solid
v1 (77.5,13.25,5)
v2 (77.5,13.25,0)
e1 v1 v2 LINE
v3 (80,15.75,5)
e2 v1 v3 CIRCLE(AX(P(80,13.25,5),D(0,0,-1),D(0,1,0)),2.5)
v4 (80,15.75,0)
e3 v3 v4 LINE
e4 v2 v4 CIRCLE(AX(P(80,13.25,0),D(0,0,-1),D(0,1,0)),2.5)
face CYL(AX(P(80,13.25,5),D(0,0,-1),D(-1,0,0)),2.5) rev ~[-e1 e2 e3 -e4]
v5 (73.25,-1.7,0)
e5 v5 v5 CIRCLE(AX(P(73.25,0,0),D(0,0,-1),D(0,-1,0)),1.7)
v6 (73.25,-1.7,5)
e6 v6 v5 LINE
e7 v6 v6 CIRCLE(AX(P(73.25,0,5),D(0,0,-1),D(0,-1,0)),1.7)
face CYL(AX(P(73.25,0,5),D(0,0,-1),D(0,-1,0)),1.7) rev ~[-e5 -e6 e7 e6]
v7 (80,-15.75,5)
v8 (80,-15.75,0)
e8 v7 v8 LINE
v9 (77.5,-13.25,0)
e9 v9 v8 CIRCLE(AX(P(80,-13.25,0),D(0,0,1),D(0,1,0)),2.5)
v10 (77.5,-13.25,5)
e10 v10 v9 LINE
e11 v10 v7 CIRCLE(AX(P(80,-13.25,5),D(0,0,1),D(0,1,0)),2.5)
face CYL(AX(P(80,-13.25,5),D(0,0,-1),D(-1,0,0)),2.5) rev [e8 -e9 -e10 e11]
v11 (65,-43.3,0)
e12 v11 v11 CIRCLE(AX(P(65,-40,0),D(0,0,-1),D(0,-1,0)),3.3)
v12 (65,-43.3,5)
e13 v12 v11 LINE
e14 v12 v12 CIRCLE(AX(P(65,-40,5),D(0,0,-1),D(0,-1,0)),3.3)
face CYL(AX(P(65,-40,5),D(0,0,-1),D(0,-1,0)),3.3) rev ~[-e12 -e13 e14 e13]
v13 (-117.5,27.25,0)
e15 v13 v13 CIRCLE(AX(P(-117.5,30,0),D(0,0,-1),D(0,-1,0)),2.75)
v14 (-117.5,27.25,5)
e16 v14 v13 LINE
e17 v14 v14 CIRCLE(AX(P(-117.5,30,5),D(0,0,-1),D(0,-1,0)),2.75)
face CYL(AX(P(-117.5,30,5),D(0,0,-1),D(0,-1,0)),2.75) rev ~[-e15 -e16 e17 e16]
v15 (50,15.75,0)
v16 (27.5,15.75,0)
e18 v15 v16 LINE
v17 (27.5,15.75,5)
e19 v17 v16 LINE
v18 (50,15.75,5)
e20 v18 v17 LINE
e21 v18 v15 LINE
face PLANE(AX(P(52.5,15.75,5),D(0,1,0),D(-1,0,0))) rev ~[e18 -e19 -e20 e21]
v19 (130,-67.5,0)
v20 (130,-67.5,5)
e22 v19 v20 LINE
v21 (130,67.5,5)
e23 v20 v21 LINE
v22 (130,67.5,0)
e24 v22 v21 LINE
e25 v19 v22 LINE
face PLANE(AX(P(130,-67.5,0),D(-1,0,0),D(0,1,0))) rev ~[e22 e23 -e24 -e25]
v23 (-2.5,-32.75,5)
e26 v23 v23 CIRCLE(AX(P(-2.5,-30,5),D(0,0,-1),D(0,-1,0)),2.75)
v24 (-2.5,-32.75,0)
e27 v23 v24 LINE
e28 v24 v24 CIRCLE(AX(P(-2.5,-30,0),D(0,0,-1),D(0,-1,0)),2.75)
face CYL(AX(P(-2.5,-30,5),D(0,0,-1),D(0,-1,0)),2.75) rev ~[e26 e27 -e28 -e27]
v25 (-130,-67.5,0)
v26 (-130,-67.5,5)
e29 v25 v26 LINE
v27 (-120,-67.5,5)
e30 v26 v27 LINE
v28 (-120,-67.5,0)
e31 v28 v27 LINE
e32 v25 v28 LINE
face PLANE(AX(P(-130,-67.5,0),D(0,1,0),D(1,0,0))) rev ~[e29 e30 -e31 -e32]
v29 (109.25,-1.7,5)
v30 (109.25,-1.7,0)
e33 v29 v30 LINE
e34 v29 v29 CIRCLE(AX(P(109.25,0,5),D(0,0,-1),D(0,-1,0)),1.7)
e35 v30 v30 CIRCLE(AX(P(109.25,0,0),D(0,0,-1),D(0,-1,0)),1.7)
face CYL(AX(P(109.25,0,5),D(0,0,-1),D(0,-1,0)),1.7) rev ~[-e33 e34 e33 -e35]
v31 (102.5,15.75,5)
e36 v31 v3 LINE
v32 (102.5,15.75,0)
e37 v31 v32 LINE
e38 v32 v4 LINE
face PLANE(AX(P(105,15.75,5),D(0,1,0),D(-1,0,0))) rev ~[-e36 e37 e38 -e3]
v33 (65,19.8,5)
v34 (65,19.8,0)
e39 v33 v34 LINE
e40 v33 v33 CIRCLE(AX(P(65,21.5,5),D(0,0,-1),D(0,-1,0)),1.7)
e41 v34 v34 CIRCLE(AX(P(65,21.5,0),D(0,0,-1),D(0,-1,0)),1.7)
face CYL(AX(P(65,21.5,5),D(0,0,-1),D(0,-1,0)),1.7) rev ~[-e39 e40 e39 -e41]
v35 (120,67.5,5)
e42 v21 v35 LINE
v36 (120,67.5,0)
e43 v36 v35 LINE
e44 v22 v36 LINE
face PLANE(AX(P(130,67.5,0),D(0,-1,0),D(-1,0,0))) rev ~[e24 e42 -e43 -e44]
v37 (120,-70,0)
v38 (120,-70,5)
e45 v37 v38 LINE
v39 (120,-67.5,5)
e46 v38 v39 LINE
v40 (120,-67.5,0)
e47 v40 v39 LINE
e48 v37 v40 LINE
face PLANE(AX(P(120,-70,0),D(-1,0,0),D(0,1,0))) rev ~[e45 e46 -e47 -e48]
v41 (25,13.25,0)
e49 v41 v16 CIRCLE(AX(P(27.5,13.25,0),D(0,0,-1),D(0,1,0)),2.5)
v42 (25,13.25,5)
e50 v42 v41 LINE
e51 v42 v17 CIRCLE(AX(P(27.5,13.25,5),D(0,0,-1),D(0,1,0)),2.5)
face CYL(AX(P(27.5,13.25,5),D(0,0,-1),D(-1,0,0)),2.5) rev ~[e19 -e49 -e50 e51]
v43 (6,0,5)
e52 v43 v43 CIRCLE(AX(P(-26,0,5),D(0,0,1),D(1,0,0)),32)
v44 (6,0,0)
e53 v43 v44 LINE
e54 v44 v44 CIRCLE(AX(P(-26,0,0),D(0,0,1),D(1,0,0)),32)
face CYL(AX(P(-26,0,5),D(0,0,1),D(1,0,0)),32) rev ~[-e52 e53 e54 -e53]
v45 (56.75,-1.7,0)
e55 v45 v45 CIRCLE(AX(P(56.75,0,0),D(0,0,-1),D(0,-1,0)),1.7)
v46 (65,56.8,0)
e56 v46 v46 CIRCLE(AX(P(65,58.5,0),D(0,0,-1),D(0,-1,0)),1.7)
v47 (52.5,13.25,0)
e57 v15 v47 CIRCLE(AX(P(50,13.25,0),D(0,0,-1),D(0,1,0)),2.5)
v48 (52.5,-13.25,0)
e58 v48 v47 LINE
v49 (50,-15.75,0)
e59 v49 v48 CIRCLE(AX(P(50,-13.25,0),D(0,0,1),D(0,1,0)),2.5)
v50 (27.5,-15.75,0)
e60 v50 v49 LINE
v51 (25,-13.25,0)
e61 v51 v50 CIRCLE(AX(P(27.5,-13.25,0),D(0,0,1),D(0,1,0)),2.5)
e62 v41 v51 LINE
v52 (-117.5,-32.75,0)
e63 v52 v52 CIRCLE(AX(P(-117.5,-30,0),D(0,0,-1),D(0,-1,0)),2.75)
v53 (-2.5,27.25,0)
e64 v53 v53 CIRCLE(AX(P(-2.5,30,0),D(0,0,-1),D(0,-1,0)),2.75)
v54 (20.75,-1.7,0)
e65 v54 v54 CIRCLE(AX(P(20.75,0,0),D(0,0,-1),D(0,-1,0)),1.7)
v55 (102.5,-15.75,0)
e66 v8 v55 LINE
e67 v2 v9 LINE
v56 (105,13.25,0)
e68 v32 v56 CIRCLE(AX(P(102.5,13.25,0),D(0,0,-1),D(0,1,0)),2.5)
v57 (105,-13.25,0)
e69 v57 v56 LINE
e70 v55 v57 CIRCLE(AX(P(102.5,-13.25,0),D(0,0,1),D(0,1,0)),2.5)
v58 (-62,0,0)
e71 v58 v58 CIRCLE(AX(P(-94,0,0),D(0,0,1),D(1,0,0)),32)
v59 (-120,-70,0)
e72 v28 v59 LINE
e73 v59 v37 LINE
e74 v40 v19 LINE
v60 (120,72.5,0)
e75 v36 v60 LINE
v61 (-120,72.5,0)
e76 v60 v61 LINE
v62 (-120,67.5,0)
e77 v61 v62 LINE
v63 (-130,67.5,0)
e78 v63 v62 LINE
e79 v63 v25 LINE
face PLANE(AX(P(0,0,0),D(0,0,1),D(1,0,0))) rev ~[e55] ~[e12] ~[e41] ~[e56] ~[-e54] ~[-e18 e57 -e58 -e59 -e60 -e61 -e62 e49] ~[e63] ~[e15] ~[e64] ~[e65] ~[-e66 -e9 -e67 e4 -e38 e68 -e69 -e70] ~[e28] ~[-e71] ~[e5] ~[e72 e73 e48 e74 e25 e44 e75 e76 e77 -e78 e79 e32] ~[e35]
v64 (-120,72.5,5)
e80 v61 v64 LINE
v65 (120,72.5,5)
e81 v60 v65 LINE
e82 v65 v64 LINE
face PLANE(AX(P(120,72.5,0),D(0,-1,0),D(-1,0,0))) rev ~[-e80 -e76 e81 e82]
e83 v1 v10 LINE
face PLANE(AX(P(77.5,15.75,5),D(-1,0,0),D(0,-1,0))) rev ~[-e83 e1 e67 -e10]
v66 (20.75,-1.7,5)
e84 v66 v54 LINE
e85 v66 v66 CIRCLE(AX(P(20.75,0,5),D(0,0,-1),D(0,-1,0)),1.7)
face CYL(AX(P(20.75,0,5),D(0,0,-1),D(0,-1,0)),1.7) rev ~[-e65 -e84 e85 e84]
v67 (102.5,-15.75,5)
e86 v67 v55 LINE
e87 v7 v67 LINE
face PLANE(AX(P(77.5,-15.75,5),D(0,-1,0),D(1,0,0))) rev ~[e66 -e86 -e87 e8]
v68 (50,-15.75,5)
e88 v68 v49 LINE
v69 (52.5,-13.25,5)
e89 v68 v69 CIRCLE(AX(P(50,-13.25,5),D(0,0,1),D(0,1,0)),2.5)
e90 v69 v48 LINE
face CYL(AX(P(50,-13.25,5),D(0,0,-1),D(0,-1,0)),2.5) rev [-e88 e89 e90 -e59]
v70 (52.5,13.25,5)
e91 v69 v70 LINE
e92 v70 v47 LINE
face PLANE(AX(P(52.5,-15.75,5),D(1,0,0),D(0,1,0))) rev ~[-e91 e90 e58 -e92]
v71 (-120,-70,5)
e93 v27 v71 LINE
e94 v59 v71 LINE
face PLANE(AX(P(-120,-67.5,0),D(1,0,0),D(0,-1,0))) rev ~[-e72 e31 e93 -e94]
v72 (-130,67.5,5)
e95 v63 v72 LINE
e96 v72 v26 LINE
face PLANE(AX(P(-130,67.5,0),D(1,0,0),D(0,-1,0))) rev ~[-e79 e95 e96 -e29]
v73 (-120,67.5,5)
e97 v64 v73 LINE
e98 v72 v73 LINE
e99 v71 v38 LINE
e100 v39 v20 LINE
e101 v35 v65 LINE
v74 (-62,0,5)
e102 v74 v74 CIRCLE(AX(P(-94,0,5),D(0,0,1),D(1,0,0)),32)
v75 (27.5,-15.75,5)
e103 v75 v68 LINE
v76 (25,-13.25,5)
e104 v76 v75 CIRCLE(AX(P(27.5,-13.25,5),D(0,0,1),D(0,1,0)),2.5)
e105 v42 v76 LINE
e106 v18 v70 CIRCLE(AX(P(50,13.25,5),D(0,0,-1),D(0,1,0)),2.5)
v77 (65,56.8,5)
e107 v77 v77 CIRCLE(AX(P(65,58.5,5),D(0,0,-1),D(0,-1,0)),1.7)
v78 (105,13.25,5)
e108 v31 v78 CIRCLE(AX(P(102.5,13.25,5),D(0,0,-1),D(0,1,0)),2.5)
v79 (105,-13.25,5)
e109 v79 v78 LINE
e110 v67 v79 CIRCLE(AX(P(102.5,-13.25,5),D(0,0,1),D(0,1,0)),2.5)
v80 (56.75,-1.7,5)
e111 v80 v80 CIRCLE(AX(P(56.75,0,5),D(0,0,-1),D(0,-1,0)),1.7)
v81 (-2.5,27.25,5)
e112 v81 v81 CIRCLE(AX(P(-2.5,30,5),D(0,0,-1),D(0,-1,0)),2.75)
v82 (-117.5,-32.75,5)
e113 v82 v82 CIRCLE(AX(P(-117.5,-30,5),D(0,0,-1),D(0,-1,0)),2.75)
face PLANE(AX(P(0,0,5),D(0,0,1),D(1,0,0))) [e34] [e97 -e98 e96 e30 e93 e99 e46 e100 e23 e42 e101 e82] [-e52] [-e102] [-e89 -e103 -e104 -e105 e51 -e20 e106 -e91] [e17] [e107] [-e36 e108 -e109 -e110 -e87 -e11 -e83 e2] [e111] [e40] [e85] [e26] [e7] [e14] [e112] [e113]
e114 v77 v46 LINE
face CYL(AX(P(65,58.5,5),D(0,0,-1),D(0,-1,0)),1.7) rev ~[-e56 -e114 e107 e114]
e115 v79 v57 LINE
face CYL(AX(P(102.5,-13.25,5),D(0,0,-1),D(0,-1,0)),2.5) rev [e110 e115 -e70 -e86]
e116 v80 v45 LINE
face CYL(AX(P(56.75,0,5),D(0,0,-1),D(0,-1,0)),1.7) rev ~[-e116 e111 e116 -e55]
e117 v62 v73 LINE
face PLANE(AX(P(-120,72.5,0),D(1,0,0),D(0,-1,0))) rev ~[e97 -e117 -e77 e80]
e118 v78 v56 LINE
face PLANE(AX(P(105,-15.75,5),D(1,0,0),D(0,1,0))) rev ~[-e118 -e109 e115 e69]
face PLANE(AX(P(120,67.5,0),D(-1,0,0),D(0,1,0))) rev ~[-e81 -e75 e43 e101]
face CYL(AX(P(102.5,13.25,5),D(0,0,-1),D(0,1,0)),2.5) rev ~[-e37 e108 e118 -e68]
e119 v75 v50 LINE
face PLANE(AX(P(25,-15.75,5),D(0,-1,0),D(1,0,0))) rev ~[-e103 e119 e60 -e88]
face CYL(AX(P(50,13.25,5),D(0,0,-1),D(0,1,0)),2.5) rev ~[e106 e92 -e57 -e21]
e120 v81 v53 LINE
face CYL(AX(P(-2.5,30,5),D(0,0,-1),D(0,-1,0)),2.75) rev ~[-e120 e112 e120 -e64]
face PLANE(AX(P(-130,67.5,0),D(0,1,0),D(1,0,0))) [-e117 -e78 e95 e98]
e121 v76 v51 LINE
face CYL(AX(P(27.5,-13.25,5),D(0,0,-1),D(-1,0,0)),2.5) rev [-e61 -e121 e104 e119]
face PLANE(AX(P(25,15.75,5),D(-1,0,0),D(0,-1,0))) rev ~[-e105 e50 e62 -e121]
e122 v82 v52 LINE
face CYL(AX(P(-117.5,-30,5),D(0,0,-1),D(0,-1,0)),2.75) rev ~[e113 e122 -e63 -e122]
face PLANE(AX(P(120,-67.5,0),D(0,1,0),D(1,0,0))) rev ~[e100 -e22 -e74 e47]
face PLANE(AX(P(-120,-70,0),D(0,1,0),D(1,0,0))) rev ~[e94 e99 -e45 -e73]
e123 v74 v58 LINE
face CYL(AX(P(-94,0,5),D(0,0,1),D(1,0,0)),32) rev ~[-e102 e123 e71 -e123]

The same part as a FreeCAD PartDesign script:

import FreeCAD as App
import Part
import Sketcher

V = App.Vector
Q = App.Units.Quantity


def edges_at(feature, points):
    """Names of the edges that pass closest to the given points."""
    edges = feature.Shape.Edges
    near = lambda p: min(range(len(edges)), key=lambda i: edges[i].distToShape(Part.Vertex(*p))[0])
    return sorted({f"Edge{near(p) + 1}" for p in points})


def add_polygon(sketch, points):
    """Adds a closed chain of lines whose ends are joined by coincident constraints."""
    first, n = sketch.GeometryCount, len(points)
    for a, b in zip(points, points[1:] + points[:1]):
        sketch.addGeometry(Part.LineSegment(App.Vector(*a, 0), App.Vector(*b, 0)), False)
    for i in range(n):
        sketch.addConstraint(Sketcher.Constraint("Coincident", first + i, 2, first + (i + 1) % n, 1))

doc = App.newDocument("Part")
body = doc.addObject("PartDesign::Body", "Body")

# Sketch on XY plane
sketch1 = body.newObject("Sketcher::SketchObject", "Sketch")
sketch1.AttachmentSupport = (doc.getObject("XY_Plane"), [""])
sketch1.MapMode = "FlatFace"
add_polygon(sketch1, [(-120, 67.5), (-130, 67.5), (-130, -67.5), (-120, -67.5), (-120, -70), (120, -70), (120, -67.5), (130, -67.5), (130, 67.5), (120, 67.5), (120, 72.5), (-120, 72.5)])  # lines 0-11
sketch1.addConstraint(Sketcher.Constraint("Horizontal", 0))
sketch1.addConstraint(Sketcher.Constraint("Vertical", 1))
sketch1.addConstraint(Sketcher.Constraint("Horizontal", 2))
sketch1.addConstraint(Sketcher.Constraint("Vertical", 3))
sketch1.addConstraint(Sketcher.Constraint("Horizontal", 4))
sketch1.addConstraint(Sketcher.Constraint("Vertical", 5))
sketch1.addConstraint(Sketcher.Constraint("Horizontal", 6))
sketch1.addConstraint(Sketcher.Constraint("Vertical", 7))
sketch1.addConstraint(Sketcher.Constraint("Horizontal", 8))
sketch1.addConstraint(Sketcher.Constraint("Vertical", 9))
sketch1.addConstraint(Sketcher.Constraint("Horizontal", 10))
sketch1.addConstraint(Sketcher.Constraint("Vertical", 11))
sketch1.addConstraint(Sketcher.Constraint("Symmetric", 0, 2, 6, 2, -1, 1))
sketch1.addConstraint(Sketcher.Constraint("Symmetric", 2, 2, 8, 2, -1, 1))
sketch1.addConstraint(Sketcher.Constraint("Symmetric", 2, 2, 5, 2, -2))
sketch1.addConstraint(Sketcher.Constraint("Vertical", 3, 2, 10, 2))
sketch1.addConstraint(Sketcher.Constraint("DistanceX", 0, 2, 0, 1, Q("10 mm")))
sketch1.addConstraint(Sketcher.Constraint("DistanceX", 4, 1, 4, 2, Q("240 mm")))
sketch1.addConstraint(Sketcher.Constraint("DistanceY", 1, 2, 1, 1, Q("135 mm")))
sketch1.addConstraint(Sketcher.Constraint("DistanceY", 9, 1, 9, 2, Q("5 mm")))
sketch1.addConstraint(Sketcher.Constraint("DistanceY", 3, 2, 3, 1, Q("2.5 mm")))
pad1 = body.newObject("PartDesign::Pad", "Pad")
pad1.Profile = sketch1
pad1.Length = 5

# Sketch on XY plane
sketch2 = body.newObject("Sketcher::SketchObject", "Sketch001")
sketch2.AttachmentSupport = (doc.getObject("XY_Plane"), [""])
sketch2.MapMode = "FlatFace"
sketch2.AttachmentOffset = App.Placement(V(0, 0, 5), App.Rotation())
add_polygon(sketch2, [(25, 15.75), (25, -15.75), (52.5, -15.75), (52.5, 15.75)])  # lines 0-3
add_polygon(sketch2, [(77.5, 15.75), (77.5, -15.75), (105, -15.75), (105, 15.75)])  # lines 4-7
sketch2.addConstraint(Sketcher.Constraint("Vertical", 0))
sketch2.addConstraint(Sketcher.Constraint("Horizontal", 1))
sketch2.addConstraint(Sketcher.Constraint("Vertical", 2))
sketch2.addConstraint(Sketcher.Constraint("Horizontal", 3))
sketch2.addConstraint(Sketcher.Constraint("Vertical", 4))
sketch2.addConstraint(Sketcher.Constraint("Horizontal", 5))
sketch2.addConstraint(Sketcher.Constraint("Vertical", 6))
sketch2.addConstraint(Sketcher.Constraint("Horizontal", 7))
sketch2.addConstraint(Sketcher.Constraint("Horizontal", 1, 2, 4, 2))
sketch2.addConstraint(Sketcher.Constraint("Horizontal", 3, 2, 6, 2))
sketch2.addConstraint(Sketcher.Constraint("Equal", 3, 5))
sketch2.addConstraint(Sketcher.Constraint("DistanceX", 1, 1, 1, 2, Q("27.5 mm")))
sketch2.addConstraint(Sketcher.Constraint("DistanceY", 0, 2, 0, 1, Q("31.5 mm")))
sketch2.addConstraint(Sketcher.Constraint("DistanceX", -1, 1, 0, 2, Q("25 mm")))
sketch2.addConstraint(Sketcher.Constraint("DistanceX", 1, 2, 4, 2, Q("25 mm")))
sketch2.addConstraint(Sketcher.Constraint("DistanceY", 0, 2, -1, 1, Q("15.75 mm")))
pocket1 = body.newObject("PartDesign::Pocket", "Pocket")
pocket1.Profile = sketch2
pocket1.Type = "ThroughAll"

# Sketch on XY plane
sketch3 = body.newObject("Sketcher::SketchObject", "Sketch002")
sketch3.AttachmentSupport = (doc.getObject("XY_Plane"), [""])
sketch3.MapMode = "FlatFace"
sketch3.AttachmentOffset = App.Placement(V(0, 0, 5), App.Rotation())
sketch3.addGeometry(Part.Circle(V(20.75, 0, 0), V(0, 0, 1), 1.7), False)
sketch3.addGeometry(Part.Circle(V(56.75, 0, 0), V(0, 0, 1), 1.7), False)
sketch3.addGeometry(Part.Circle(V(73.25, 0, 0), V(0, 0, 1), 1.7), False)
sketch3.addGeometry(Part.Circle(V(109.25, 0, 0), V(0, 0, 1), 1.7), False)
sketch3.addConstraint(Sketcher.Constraint("Equal", 0, 1))
sketch3.addConstraint(Sketcher.Constraint("Equal", 1, 2))
sketch3.addConstraint(Sketcher.Constraint("Equal", 2, 3))
sketch3.addConstraint(Sketcher.Constraint("PointOnObject", 0, 3, -1))
sketch3.addConstraint(Sketcher.Constraint("PointOnObject", 1, 3, -1))
sketch3.addConstraint(Sketcher.Constraint("PointOnObject", 2, 3, -1))
sketch3.addConstraint(Sketcher.Constraint("PointOnObject", 3, 3, -1))
sketch3.addConstraint(Sketcher.Constraint("Diameter", 0, Q("3.4 mm")))
sketch3.addConstraint(Sketcher.Constraint("DistanceX", 0, 3, 1, 3, Q("36 mm")))
sketch3.addConstraint(Sketcher.Constraint("DistanceX", 2, 3, 3, 3, Q("36 mm")))
sketch3.addConstraint(Sketcher.Constraint("DistanceX", 1, 3, 2, 3, Q("16.5 mm")))
sketch3.addConstraint(Sketcher.Constraint("DistanceX", -1, 1, 0, 3, Q("20.75 mm")))
doc.recompute()
hole = body.newObject("PartDesign::Hole", "Hole")
hole.Profile = sketch3
hole.ThreadType = "None"
hole.Diameter = 3.4
hole.DepthType = "Dimension"
hole.Depth = 8
hole.DrillPoint = "Angled"
hole.DrillPointAngle = 118
doc.recompute()

fillet = body.newObject("PartDesign::Fillet", "Fillet")
fillet.Base = (hole, edges_at(hole, [
    (25, 15.75, 2.5),
    (77.5, 15.75, 2.5),
    (105, 15.75, 2.5),
    (52.5, 15.75, 2.5),
    (52.5, -15.75, 2.5),
    (105, -15.75, 2.5),
    (25, -15.75, 2.5),
    (77.5, -15.75, 2.5),
]))
fillet.Radius = 2.5

# Sketch on XY plane
sketch4 = body.newObject("Sketcher::SketchObject", "Sketch003")
sketch4.AttachmentSupport = (doc.getObject("XY_Plane"), [""])
sketch4.MapMode = "FlatFace"
sketch4.AttachmentOffset = App.Placement(V(0, 0, 5), App.Rotation())
sketch4.addGeometry(Part.Circle(V(-94, 0, 0), V(0, 0, 1), 32), False)
sketch4.addGeometry(Part.Circle(V(-26, 0, 0), V(0, 0, 1), 32), False)
sketch4.addConstraint(Sketcher.Constraint("Equal", 0, 1))
sketch4.addConstraint(Sketcher.Constraint("PointOnObject", 0, 3, -1))
sketch4.addConstraint(Sketcher.Constraint("PointOnObject", 1, 3, -1))
sketch4.addConstraint(Sketcher.Constraint("Diameter", 0, Q("64 mm")))
sketch4.addConstraint(Sketcher.Constraint("DistanceX", 0, 3, 1, 3, Q("68 mm")))
sketch4.addConstraint(Sketcher.Constraint("DistanceX", 0, 3, -1, 1, Q("94 mm")))
pocket2 = body.newObject("PartDesign::Pocket", "Pocket001")
pocket2.Profile = sketch4
pocket2.Type = "ThroughAll"

# Sketch on XY plane
sketch5 = body.newObject("Sketcher::SketchObject", "Sketch004")
sketch5.AttachmentSupport = (doc.getObject("XY_Plane"), [""])
sketch5.MapMode = "FlatFace"
sketch5.AttachmentOffset = App.Placement(V(0, 0, 5), App.Rotation())
sketch5.addGeometry(Part.Circle(V(65, -40, 0), V(0, 0, 1), 3.3), False)
sketch5.addConstraint(Sketcher.Constraint("Diameter", 0, Q("6.6 mm")))
sketch5.addConstraint(Sketcher.Constraint("DistanceX", -1, 1, 0, 3, Q("65 mm")))
sketch5.addConstraint(Sketcher.Constraint("DistanceY", 0, 3, -1, 1, Q("40 mm")))
doc.recompute()
hole2 = body.newObject("PartDesign::Hole", "Hole001")
hole2.Profile = sketch5
hole2.ThreadType = "None"
hole2.Diameter = 6.6
hole2.DepthType = "Dimension"
hole2.Depth = 8
hole2.DrillPoint = "Angled"
hole2.DrillPointAngle = 118

# Sketch on XY plane
sketch6 = body.newObject("Sketcher::SketchObject", "Sketch005")
sketch6.AttachmentSupport = (doc.getObject("XY_Plane"), [""])
sketch6.MapMode = "FlatFace"
sketch6.AttachmentOffset = App.Placement(V(0, 0, 5), App.Rotation())
sketch6.addGeometry(Part.Circle(V(-117.5, 30, 0), V(0, 0, 1), 2.75), False)
sketch6.addGeometry(Part.Circle(V(-117.5, -30, 0), V(0, 0, 1), 2.75), False)
sketch6.addGeometry(Part.Circle(V(-2.5, -30, 0), V(0, 0, 1), 2.75), False)
sketch6.addGeometry(Part.Circle(V(-2.5, 30, 0), V(0, 0, 1), 2.75), False)
sketch6.addConstraint(Sketcher.Constraint("Equal", 0, 1))
sketch6.addConstraint(Sketcher.Constraint("Equal", 1, 2))
sketch6.addConstraint(Sketcher.Constraint("Equal", 2, 3))
sketch6.addConstraint(Sketcher.Constraint("Symmetric", 0, 3, 1, 3, -1))
sketch6.addConstraint(Sketcher.Constraint("Symmetric", 2, 3, 3, 3, -1))
sketch6.addConstraint(Sketcher.Constraint("Horizontal", 1, 3, 2, 3))
sketch6.addConstraint(Sketcher.Constraint("Diameter", 0, Q("5.5 mm")))
sketch6.addConstraint(Sketcher.Constraint("DistanceY", -1, 1, 0, 3, Q("30 mm")))
sketch6.addConstraint(Sketcher.Constraint("DistanceX", 1, 3, 2, 3, Q("115 mm")))
sketch6.addConstraint(Sketcher.Constraint("DistanceX", 0, 3, -1, 1, Q("117.5 mm")))
doc.recompute()
hole3 = body.newObject("PartDesign::Hole", "Hole002")
hole3.Profile = sketch6
hole3.ThreadType = "None"
hole3.Diameter = 5.5
hole3.DepthType = "Dimension"
hole3.Depth = 8
hole3.DrillPoint = "Angled"
hole3.DrillPointAngle = 118

# Sketch on XY plane
sketch7 = body.newObject("Sketcher::SketchObject", "Sketch006")
sketch7.AttachmentSupport = (doc.getObject("XY_Plane"), [""])
sketch7.MapMode = "FlatFace"
sketch7.AttachmentOffset = App.Placement(V(0, 0, 5), App.Rotation())
sketch7.addGeometry(Part.Circle(V(65, 21.5, 0), V(0, 0, 1), 1.7), False)
sketch7.addGeometry(Part.Circle(V(65, 58.5, 0), V(0, 0, 1), 1.7), False)
sketch7.addConstraint(Sketcher.Constraint("Equal", 0, 1))
sketch7.addConstraint(Sketcher.Constraint("Vertical", 0, 3, 1, 3))
sketch7.addConstraint(Sketcher.Constraint("Diameter", 0, Q("3.4 mm")))
sketch7.addConstraint(Sketcher.Constraint("DistanceX", -1, 1, 0, 3, Q("65 mm")))
sketch7.addConstraint(Sketcher.Constraint("DistanceY", 0, 3, 1, 3, Q("37 mm")))
sketch7.addConstraint(Sketcher.Constraint("DistanceY", -1, 1, 0, 3, Q("21.5 mm")))
doc.recompute()
hole4 = body.newObject("PartDesign::Hole", "Hole003")
hole4.Profile = sketch7
hole4.ThreadType = "None"
hole4.Diameter = 3.4
hole4.DepthType = "Dimension"
hole4.Depth = 8
hole4.DrillPoint = "Angled"
hole4.DrillPointAngle = 118

doc.recompute()
